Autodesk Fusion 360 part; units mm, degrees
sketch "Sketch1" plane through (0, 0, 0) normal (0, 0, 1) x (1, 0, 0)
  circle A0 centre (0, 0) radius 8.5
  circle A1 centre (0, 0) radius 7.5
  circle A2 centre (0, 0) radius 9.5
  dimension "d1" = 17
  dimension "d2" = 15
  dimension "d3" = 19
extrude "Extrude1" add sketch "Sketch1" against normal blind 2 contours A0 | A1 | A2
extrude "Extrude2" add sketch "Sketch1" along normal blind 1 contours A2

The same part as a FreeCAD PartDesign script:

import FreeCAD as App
import Part
import Sketcher

V = App.Vector

doc = App.newDocument("Part")
body = doc.addObject("PartDesign::Body", "Body")

# Sketch on XY plane
sketch1 = body.newObject("Sketcher::SketchObject", "Sketch")
sketch1.AttachmentSupport = (doc.getObject("XY_Plane"), [""])
sketch1.MapMode = "FlatFace"
sketch1.addGeometry(Part.Circle(V(0, 0, 0), V(0, 0, 1), 9.5), False)
sketch1.addConstraint(Sketcher.Constraint("Coincident", 0, 3, -1, 1))
sketch1.addConstraint(Sketcher.Constraint("Diameter", 0, 19.0))
pad1 = body.newObject("PartDesign::Pad", "Pad")
pad1.Profile = sketch1
pad1.Length = 2
pad1.Reversed = True

# Sketch on XY plane
sketch2 = body.newObject("Sketcher::SketchObject", "Sketch001")
sketch2.AttachmentSupport = (doc.getObject("XY_Plane"), [""])
sketch2.MapMode = "FlatFace"
sketch2.addGeometry(Part.Circle(V(0, 0, 0), V(0, 0, 1), 9.5), False)
sketch2.addGeometry(Part.Circle(V(0, 0, 0), V(0, 0, 1), 8.5), False)
sketch2.addConstraint(Sketcher.Constraint("Coincident", 0, 3, -1, 1))
sketch2.addConstraint(Sketcher.Constraint("Coincident", 1, 3, -1, 1))
sketch2.addConstraint(Sketcher.Constraint("Diameter", 0, 19.0))
sketch2.addConstraint(Sketcher.Constraint("Diameter", 1, 17.0))
pad2 = body.newObject("PartDesign::Pad", "Pad001")
pad2.Profile = sketch2
pad2.Length = 1

doc.recompute()
